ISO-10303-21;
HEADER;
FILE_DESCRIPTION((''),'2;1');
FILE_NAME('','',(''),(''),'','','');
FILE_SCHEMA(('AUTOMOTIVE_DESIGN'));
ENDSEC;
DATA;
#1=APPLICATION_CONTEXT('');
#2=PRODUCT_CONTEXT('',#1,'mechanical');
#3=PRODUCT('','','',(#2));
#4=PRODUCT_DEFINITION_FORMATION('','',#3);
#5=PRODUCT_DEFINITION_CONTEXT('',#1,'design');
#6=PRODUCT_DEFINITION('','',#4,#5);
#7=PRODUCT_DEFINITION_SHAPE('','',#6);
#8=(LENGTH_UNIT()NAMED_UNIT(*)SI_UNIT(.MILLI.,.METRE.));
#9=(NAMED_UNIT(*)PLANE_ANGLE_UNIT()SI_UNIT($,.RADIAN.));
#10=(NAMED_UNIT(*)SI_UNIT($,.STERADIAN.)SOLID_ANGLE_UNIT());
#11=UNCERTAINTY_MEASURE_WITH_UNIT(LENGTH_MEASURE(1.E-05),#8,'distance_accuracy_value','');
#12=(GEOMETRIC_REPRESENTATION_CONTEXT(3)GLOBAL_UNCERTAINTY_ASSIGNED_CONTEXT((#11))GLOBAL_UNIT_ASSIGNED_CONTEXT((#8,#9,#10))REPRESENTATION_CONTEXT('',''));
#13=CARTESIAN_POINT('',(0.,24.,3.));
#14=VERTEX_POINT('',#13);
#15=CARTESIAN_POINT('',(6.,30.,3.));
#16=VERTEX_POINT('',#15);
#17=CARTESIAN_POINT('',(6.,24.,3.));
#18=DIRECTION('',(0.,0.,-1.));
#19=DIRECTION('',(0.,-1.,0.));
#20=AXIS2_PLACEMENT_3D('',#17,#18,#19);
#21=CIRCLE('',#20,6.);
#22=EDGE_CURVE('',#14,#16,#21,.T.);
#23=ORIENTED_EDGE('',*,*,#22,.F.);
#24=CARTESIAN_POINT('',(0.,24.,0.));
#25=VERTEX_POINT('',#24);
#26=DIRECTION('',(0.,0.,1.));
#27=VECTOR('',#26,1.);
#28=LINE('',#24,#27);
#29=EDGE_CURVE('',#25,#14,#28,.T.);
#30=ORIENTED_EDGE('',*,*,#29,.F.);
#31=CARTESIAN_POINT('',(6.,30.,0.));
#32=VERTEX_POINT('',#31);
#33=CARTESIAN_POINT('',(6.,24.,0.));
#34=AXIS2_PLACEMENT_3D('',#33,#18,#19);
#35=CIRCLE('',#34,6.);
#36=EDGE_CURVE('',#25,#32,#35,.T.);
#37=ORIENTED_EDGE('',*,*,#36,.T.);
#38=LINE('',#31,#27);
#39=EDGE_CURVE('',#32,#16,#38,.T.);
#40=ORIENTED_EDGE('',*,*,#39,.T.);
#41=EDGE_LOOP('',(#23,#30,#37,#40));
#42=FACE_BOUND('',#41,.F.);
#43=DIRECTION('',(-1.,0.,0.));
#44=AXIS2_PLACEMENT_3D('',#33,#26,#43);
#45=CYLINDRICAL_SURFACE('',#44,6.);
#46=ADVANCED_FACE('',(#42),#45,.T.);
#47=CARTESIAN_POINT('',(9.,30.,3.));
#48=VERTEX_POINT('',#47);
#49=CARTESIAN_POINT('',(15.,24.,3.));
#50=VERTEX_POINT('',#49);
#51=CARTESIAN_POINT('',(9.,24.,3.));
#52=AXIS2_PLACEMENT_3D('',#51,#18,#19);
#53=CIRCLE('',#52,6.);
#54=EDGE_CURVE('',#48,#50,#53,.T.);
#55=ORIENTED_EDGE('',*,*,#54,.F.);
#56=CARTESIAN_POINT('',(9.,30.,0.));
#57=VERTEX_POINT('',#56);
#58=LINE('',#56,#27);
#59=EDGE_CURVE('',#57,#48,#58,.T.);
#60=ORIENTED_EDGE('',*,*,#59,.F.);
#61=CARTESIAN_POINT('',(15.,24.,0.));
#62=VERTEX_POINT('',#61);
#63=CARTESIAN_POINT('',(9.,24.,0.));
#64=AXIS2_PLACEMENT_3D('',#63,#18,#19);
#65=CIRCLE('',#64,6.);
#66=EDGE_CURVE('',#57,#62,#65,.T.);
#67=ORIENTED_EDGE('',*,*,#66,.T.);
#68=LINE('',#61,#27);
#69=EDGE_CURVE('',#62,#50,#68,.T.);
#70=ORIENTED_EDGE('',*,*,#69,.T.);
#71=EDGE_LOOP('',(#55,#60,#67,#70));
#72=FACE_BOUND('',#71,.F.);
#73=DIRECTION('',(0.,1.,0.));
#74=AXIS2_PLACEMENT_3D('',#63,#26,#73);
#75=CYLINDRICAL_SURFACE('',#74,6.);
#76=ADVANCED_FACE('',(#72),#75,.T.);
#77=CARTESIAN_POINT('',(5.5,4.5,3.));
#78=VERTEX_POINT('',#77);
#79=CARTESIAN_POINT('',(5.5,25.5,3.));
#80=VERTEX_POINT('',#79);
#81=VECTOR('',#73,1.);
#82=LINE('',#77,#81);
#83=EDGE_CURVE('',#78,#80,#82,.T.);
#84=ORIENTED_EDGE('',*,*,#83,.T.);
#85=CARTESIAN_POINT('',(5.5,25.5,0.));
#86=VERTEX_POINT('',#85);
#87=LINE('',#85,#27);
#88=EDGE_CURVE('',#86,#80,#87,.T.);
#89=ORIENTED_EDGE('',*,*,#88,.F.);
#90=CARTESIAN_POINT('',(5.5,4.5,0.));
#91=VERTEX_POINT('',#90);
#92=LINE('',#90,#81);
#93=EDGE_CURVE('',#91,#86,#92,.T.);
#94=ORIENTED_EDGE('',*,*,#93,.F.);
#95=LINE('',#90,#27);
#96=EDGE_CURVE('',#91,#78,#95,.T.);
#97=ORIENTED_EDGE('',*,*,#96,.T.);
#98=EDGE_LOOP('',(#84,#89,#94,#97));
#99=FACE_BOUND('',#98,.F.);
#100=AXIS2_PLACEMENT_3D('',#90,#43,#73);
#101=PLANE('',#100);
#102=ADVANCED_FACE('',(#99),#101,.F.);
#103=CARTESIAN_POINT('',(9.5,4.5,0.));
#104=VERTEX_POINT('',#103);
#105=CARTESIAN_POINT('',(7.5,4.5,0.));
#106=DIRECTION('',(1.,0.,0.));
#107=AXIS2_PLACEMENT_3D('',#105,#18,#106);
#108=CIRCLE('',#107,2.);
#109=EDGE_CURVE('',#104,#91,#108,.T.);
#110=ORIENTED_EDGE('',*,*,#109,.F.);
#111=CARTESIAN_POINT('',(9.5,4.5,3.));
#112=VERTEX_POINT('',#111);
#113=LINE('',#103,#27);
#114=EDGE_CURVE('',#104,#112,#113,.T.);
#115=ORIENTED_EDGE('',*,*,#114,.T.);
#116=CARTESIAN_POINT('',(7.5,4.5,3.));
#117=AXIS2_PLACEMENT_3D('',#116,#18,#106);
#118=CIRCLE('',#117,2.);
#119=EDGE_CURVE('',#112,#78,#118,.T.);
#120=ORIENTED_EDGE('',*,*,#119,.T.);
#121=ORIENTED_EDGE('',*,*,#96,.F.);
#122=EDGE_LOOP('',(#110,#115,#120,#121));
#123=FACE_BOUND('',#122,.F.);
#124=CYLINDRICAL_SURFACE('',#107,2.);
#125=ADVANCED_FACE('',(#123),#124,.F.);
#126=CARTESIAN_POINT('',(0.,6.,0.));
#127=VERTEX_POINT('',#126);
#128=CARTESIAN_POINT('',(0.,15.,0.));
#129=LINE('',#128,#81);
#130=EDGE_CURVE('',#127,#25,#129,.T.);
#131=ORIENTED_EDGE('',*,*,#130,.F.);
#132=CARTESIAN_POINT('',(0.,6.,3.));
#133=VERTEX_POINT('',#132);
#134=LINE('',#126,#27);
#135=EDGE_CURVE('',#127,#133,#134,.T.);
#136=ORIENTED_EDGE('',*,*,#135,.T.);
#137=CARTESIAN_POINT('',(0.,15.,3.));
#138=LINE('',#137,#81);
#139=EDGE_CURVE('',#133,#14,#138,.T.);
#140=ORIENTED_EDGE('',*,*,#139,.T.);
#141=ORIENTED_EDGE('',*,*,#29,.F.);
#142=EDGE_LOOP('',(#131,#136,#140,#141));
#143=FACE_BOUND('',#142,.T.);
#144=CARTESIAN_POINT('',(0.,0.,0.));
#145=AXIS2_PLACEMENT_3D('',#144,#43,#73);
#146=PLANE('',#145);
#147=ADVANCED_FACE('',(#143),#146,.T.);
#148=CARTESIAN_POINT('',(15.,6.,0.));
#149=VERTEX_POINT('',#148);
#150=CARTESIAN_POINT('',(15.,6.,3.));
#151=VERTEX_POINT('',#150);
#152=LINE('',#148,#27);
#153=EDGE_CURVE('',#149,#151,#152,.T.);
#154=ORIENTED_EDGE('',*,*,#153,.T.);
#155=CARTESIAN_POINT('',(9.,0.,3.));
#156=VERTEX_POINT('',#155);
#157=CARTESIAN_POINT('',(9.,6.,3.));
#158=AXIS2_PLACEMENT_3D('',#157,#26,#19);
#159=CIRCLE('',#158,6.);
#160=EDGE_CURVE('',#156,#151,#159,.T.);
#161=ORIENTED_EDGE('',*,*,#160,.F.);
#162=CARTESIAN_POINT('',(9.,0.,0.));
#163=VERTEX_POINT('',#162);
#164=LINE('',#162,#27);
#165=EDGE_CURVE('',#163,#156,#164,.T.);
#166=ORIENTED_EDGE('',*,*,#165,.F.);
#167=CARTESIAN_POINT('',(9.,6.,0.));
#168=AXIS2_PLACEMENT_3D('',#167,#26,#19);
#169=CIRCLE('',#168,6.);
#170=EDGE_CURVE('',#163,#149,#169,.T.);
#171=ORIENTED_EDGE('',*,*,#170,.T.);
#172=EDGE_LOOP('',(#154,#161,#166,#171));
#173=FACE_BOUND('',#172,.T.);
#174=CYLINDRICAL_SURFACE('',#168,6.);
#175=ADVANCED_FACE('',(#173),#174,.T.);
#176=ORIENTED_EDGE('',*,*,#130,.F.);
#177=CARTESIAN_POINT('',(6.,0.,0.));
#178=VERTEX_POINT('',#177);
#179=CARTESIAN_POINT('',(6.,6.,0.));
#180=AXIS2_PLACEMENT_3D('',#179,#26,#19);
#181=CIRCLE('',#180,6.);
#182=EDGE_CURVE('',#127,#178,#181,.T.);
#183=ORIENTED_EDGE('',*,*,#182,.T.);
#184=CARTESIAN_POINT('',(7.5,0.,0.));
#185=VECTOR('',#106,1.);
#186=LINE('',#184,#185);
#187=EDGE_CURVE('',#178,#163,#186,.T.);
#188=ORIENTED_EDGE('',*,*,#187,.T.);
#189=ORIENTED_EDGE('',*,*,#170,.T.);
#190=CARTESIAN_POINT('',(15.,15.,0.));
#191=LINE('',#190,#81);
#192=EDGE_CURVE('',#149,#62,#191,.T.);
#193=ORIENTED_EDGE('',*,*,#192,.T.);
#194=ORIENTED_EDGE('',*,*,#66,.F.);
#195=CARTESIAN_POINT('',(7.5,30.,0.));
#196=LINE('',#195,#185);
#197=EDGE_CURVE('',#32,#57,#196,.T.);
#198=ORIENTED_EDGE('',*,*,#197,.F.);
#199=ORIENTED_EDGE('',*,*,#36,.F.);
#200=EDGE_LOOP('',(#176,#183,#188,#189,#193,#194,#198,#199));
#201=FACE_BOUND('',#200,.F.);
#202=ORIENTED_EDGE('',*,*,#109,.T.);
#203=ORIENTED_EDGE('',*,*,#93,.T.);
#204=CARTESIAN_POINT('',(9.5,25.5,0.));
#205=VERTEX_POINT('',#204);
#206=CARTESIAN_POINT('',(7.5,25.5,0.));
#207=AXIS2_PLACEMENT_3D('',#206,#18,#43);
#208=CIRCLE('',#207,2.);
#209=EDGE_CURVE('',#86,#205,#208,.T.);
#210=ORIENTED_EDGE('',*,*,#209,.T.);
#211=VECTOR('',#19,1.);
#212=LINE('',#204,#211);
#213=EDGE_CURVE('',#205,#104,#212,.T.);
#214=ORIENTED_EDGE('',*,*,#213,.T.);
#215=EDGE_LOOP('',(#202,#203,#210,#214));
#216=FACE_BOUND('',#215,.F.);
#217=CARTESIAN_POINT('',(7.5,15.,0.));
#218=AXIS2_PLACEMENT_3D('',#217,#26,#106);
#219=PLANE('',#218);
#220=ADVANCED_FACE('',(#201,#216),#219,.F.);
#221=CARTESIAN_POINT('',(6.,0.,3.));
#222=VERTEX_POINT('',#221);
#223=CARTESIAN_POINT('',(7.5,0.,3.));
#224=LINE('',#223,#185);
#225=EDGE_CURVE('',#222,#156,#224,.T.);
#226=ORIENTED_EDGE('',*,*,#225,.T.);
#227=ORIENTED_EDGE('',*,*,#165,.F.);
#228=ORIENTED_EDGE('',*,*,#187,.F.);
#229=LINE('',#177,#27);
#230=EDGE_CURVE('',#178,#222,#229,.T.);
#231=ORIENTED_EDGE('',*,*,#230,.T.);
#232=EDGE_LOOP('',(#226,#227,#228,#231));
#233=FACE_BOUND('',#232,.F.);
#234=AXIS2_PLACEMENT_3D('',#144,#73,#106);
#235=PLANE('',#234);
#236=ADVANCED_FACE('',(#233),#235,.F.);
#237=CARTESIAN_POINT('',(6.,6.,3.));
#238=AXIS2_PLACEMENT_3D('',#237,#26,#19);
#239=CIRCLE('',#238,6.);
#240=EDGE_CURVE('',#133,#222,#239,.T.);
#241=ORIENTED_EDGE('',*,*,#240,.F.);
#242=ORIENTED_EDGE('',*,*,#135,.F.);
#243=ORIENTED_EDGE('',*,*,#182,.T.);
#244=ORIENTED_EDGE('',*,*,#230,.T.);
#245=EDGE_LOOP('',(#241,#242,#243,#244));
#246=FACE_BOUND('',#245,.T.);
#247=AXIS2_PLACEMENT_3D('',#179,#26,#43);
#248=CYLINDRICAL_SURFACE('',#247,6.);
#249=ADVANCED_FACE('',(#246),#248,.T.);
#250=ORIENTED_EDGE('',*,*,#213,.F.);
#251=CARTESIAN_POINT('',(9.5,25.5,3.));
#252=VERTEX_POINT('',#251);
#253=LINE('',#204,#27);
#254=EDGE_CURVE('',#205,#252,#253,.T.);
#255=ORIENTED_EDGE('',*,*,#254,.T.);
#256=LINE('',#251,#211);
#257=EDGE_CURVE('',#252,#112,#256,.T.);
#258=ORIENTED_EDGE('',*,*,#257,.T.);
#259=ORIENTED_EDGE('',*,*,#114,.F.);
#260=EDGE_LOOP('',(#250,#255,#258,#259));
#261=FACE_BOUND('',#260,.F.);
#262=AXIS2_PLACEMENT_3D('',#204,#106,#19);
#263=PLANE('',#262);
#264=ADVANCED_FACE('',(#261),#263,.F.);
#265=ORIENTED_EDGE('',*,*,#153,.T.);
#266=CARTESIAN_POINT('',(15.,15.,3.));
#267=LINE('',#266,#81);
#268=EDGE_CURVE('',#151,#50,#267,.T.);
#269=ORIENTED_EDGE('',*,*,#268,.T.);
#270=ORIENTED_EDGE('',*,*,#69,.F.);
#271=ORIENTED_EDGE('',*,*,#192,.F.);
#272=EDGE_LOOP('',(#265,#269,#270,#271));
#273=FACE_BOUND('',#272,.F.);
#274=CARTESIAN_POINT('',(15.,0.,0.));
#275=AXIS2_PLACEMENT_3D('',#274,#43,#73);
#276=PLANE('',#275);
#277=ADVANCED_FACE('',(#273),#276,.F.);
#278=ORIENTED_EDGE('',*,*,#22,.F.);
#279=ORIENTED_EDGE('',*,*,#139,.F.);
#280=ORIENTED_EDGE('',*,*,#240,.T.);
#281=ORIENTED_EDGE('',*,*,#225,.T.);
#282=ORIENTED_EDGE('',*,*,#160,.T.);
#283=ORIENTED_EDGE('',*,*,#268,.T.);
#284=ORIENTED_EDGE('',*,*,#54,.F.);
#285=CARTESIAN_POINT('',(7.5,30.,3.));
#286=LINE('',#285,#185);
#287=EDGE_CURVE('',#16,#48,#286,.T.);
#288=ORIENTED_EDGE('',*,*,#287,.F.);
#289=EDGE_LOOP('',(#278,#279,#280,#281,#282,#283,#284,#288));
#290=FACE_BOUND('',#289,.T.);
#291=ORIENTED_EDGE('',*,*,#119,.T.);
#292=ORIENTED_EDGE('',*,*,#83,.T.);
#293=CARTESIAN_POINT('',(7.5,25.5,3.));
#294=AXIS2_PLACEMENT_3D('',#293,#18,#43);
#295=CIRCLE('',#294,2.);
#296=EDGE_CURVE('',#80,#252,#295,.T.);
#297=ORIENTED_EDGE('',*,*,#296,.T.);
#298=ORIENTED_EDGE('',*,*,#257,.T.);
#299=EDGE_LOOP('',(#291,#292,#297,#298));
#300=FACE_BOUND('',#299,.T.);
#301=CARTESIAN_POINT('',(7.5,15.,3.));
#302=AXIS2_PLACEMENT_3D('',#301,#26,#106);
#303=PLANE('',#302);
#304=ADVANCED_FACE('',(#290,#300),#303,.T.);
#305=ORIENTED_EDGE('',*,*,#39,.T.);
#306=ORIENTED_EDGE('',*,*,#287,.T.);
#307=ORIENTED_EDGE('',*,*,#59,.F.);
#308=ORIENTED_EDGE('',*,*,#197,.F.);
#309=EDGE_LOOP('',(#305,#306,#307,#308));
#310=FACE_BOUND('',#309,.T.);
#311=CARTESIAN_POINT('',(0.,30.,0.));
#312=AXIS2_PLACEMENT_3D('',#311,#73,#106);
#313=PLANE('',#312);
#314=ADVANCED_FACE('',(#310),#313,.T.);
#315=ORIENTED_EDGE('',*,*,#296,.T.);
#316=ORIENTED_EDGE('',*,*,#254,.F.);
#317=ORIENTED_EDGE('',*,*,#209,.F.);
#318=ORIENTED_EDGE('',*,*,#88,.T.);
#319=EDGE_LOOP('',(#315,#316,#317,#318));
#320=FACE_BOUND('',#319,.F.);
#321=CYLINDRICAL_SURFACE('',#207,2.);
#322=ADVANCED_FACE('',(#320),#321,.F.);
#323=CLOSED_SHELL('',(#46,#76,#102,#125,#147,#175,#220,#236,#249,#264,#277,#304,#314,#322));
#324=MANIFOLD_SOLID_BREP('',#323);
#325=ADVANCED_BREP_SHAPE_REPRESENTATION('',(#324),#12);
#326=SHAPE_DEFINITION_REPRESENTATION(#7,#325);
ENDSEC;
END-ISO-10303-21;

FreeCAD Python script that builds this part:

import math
import FreeCAD as App
import Part
import Sketcher
from FreeCAD import Vector


def edges_at(feature, points):
    """Names of the edges that pass closest to the given points."""
    edges = feature.Shape.Edges
    near = lambda p: min(range(len(edges)), key=lambda i: edges[i].distToShape(Part.Vertex(*p))[0])
    return sorted({f"Edge{near(p) + 1}" for p in points})


def add_polygon(sketch, points):
    """Adds a closed chain of lines whose ends are joined by coincident constraints."""
    first, n = sketch.GeometryCount, len(points)
    for a, b in zip(points, points[1:] + points[:1]):
        sketch.addGeometry(Part.LineSegment(App.Vector(*a, 0), App.Vector(*b, 0)), False)
    for i in range(n):
        sketch.addConstraint(Sketcher.Constraint("Coincident", first + i, 2, first + (i + 1) % n, 1))

doc = App.newDocument("Part")
body = doc.addObject("PartDesign::Body", "Body")

# Sketch on XY plane
sketch1 = body.newObject("Sketcher::SketchObject", "Sketch")
sketch1.AttachmentSupport = (doc.getObject("XY_Plane"), [""])
sketch1.MapMode = "FlatFace"
add_polygon(sketch1, [(0, 30), (0, 0), (15, 0), (15, 30)])  # lines 0-3
sketch1.addGeometry(Part.LineSegment(Vector(5.5, 4.5, 0), Vector(5.5, 25.5, 0)), False)  # 4
sketch1.addGeometry(Part.ArcOfCircle(Part.Circle(Vector(7.5, 25.5, 0), Vector(0, 0, 1), 2), math.radians(0), math.radians(180)), False)  # 5
sketch1.addGeometry(Part.LineSegment(Vector(9.5, 25.5, 0), Vector(9.5, 4.5, 0)), False)  # 6
sketch1.addGeometry(Part.ArcOfCircle(Part.Circle(Vector(7.5, 4.5, 0), Vector(0, 0, 1), 2), math.radians(180), math.radians(360)), False)  # 7
sketch1.addConstraint([
    Sketcher.Constraint("Tangent", 4, 2, 5, 2),
    Sketcher.Constraint("Tangent", 5, 1, 6, 1),
    Sketcher.Constraint("Tangent", 6, 2, 7, 2),
    Sketcher.Constraint("Tangent", 7, 1, 4, 1),
    Sketcher.Constraint("Vertical", 0),
    Sketcher.Constraint("Horizontal", 1),
    Sketcher.Constraint("Vertical", 2),
    Sketcher.Constraint("Horizontal", 3),
    Sketcher.Constraint("Vertical", 4),
    Sketcher.Constraint("Vertical", 6),
    Sketcher.Constraint("Coincident", 0, 2, -1, 1),
    Sketcher.Constraint("Radius", 5, 2.0),
    Sketcher.Constraint("DistanceX", 1, 1, 1, 2, 15.0),
    Sketcher.Constraint("DistanceY", 0, 2, 0, 1, 30.0),
    Sketcher.Constraint("DistanceY", 4, 1, 4, 2, 21.0),
    Sketcher.Constraint("DistanceX", -1, 1, 5, 3, 7.5),
    Sketcher.Constraint("DistanceY", -1, 1, 5, 3, 25.5),
])
pad1 = body.newObject("PartDesign::Pad", "Pad")
pad1.Profile = sketch1
pad1.Length = 3
doc.recompute()

fillet = body.newObject("PartDesign::Fillet", "Fillet")
fillet.Base = (pad1, edges_at(pad1, [
    (15, 0, 1.5),
    (0, 0, 1.5),
    (15, 30, 1.5),
    (0, 30, 1.5),
]))
fillet.Radius = 6

doc.recompute()
